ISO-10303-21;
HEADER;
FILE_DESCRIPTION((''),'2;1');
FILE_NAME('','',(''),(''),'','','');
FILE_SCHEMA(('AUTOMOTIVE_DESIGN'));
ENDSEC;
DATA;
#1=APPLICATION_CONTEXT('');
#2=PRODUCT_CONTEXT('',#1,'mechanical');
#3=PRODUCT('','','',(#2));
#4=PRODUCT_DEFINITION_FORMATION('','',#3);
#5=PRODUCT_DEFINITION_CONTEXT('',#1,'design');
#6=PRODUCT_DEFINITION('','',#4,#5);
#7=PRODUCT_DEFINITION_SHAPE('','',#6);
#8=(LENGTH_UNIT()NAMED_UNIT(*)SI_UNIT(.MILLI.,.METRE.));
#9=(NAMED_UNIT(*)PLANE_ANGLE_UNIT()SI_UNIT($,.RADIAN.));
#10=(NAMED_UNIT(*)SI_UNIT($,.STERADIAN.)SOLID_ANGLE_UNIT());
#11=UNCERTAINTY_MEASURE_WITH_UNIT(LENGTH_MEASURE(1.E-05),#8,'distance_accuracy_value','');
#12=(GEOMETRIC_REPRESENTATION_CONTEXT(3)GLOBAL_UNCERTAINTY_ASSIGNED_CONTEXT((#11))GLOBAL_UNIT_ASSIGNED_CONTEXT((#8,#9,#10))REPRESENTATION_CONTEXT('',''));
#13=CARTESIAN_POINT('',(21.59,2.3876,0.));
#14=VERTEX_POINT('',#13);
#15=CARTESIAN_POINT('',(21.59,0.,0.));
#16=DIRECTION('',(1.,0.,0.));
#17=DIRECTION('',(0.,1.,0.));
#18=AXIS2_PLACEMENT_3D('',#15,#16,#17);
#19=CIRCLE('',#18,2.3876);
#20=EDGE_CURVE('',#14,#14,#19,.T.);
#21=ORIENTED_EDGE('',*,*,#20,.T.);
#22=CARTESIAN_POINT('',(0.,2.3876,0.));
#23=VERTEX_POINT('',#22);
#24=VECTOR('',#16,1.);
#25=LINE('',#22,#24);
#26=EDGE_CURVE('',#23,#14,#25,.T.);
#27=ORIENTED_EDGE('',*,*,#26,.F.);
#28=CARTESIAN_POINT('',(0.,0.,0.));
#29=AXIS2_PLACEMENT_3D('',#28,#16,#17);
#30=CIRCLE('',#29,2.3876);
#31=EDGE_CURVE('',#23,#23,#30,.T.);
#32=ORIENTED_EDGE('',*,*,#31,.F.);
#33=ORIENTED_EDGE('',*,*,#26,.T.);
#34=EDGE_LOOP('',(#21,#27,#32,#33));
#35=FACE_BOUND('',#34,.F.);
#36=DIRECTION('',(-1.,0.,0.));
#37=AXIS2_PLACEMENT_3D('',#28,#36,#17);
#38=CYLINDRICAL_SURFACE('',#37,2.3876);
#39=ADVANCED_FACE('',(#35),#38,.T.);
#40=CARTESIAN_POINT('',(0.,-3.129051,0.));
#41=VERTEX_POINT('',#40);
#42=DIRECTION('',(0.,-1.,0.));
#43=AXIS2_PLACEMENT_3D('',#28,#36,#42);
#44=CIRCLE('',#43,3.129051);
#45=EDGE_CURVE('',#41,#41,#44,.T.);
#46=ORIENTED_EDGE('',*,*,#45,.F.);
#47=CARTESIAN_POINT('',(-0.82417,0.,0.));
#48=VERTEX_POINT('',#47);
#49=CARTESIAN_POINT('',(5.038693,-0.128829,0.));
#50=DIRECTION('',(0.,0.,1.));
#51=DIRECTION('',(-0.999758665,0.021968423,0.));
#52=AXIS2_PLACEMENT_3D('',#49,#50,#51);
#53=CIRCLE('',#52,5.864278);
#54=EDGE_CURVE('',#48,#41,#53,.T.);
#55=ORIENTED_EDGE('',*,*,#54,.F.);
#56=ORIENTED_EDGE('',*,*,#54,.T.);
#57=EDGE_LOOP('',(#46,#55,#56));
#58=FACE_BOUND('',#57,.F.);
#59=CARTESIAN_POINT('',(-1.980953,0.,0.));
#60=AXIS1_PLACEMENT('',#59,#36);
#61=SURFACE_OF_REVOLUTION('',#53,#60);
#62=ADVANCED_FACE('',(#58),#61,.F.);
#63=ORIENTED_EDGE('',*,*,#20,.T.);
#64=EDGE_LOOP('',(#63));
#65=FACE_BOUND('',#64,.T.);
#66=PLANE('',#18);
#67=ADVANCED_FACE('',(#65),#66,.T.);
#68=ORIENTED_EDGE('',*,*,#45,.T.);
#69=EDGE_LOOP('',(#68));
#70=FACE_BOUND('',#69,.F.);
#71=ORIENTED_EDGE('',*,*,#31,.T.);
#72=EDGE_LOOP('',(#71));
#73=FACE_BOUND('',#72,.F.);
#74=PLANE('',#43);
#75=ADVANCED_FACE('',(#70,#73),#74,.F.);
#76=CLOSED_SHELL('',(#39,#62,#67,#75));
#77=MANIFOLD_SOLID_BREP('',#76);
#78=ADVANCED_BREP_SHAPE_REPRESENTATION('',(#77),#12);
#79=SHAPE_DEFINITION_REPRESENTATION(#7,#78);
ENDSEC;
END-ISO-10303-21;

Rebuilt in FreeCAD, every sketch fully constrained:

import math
import FreeCAD as App
import Part
import Sketcher
from FreeCAD import Vector
Q = App.Units.Quantity

doc = App.newDocument("Part")
body = doc.addObject("PartDesign::Body", "Body")

# Sketch on YZ plane
sketch1 = body.newObject("Sketcher::SketchObject", "Sketch")
sketch1.AttachmentSupport = (doc.getObject("YZ_Plane"), [""])
sketch1.MapMode = "FlatFace"
sketch1.addGeometry(Part.Circle(Vector(0, 0, 0), Vector(0, 0, 1), 2.3876), False)
sketch1.addConstraint([
    Sketcher.Constraint("Coincident", 0, 3, -1, 1),
    Sketcher.Constraint("Diameter", 0, Q("0.188 in")),
])
pad1 = body.newObject("PartDesign::Pad", "Pad")
pad1.Profile = sketch1
pad1.Length = Q("0.85 in")

# Sketch on XY plane
sketch2 = body.newObject("Sketcher::SketchObject", "Sketch001")
sketch2.AttachmentSupport = (doc.getObject("XY_Plane"), [""])
sketch2.MapMode = "FlatFace"
sketch2.addGeometry([
    Part.LineSegment(Vector(0, -3.129051, 0), Vector(0, 0, 0)),
    Part.LineSegment(Vector(0, 0, 0), Vector(-0.82417, 0, 0)),
    Part.ArcOfCircle(Part.Circle(Vector(5.038693, -0.128829, 0), Vector(0, 0, 1), 5.864278), math.radians(178.741201), math.radians(210.771115)),
], False)
sketch2.addConstraint([
    Sketcher.Constraint("Coincident", 0, 2, 1, 1),
    Sketcher.Constraint("Coincident", 1, 2, 2, 1),
    Sketcher.Constraint("Coincident", 2, 2, 0, 1),
    Sketcher.Constraint("Vertical", 0),
    Sketcher.Constraint("Horizontal", 1),
    Sketcher.Constraint("Coincident", 0, 2, -1, 1),
    Sketcher.Constraint("Radius", 2, 5.864278),
    Sketcher.Constraint("DistanceX", 1, 2, 1, 1, 0.82417),
    Sketcher.Constraint("DistanceY", 0, 1, 0, 2, 3.129051),
])
revolution = body.newObject("PartDesign::Revolution", "Revolution")
revolution.Profile = sketch2
revolution.ReferenceAxis = (sketch2, ["H_Axis"])
revolution.Angle = 360

doc.recompute()
